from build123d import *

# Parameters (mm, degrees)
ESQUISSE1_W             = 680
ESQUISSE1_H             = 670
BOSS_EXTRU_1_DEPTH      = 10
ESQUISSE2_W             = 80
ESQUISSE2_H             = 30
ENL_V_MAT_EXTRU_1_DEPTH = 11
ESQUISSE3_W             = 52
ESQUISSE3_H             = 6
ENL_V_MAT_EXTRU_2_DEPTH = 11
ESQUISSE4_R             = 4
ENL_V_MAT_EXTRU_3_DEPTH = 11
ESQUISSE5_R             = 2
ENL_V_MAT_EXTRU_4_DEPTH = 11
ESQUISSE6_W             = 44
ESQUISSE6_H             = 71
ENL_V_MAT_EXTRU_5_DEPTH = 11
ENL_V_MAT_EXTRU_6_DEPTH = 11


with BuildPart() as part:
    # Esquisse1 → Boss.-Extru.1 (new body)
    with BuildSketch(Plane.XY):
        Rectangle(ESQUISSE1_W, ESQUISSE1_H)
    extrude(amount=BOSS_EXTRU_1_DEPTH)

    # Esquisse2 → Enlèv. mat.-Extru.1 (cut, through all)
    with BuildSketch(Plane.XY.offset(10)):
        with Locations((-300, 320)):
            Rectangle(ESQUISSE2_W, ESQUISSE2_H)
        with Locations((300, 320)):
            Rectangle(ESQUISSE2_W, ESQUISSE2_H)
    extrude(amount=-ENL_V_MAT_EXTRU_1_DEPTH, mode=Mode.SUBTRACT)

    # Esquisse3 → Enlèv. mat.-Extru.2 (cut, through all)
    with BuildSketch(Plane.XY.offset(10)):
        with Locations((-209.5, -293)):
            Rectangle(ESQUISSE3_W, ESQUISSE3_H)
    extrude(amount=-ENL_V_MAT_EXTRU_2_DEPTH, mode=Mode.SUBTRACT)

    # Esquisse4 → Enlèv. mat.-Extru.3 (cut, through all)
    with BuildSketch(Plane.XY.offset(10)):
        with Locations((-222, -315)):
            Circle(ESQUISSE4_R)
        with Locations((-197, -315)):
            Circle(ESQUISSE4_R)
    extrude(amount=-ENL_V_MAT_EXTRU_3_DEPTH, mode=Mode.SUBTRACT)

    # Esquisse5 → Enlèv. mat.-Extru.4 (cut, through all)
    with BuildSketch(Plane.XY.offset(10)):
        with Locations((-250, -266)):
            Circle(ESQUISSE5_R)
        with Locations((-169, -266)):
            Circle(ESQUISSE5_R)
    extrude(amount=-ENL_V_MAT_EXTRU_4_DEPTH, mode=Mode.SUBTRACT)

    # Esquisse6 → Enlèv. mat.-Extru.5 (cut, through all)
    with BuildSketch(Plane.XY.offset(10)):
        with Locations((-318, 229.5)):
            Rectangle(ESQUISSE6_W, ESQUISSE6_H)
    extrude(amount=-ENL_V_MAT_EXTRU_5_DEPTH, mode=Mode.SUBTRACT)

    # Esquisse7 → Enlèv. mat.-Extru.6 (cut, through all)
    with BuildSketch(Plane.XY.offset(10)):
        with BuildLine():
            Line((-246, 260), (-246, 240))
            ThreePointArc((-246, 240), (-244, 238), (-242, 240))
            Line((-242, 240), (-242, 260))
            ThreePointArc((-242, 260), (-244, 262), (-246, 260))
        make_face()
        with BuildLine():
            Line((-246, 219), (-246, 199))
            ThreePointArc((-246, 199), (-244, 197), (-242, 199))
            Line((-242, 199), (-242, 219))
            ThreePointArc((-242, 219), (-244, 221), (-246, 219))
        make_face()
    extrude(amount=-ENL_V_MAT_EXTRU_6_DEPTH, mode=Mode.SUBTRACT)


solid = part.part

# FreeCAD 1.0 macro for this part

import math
import FreeCAD as App
import Part
import Sketcher

V = App.Vector
Q = App.Units.Quantity


def add_polygon(sketch, points):
    """Adds a closed chain of lines whose ends are joined by coincident constraints."""
    first, n = sketch.GeometryCount, len(points)
    for a, b in zip(points, points[1:] + points[:1]):
        sketch.addGeometry(Part.LineSegment(App.Vector(*a, 0), App.Vector(*b, 0)), False)
    for i in range(n):
        sketch.addConstraint(Sketcher.Constraint("Coincident", first + i, 2, first + (i + 1) % n, 1))

doc = App.newDocument("Part")
body = doc.addObject("PartDesign::Body", "Body")

# Sketch on XY plane
sketch1 = doc.addObject("Sketcher::SketchObject", "Sketch")
body.addObject(sketch1)
sketch1.AttachmentSupport = (doc.XY_Plane, [""])
sketch1.MapMode = "FlatFace"
add_polygon(sketch1, [(-340, 335), (-340, -335), (340, -335), (340, 335)])  # lines 0-3
sketch1.addConstraint([
    Sketcher.Constraint("Vertical", 0),
    Sketcher.Constraint("Horizontal", 1),
    Sketcher.Constraint("Vertical", 2),
    Sketcher.Constraint("Horizontal", 3),
    Sketcher.Constraint("Symmetric", 0, 2, 2, 2, -1, 1),
    Sketcher.Constraint("DistanceX", 1, 1, 1, 2, Q("680 mm")),
    Sketcher.Constraint("DistanceY", 0, 2, 0, 1, Q("670 mm")),
])
pad1 = doc.addObject("PartDesign::Pad", "Pad")
body.addObject(pad1)
pad1.Profile = sketch1
pad1.Length = 10

# Sketch on XY plane
sketch2 = doc.addObject("Sketcher::SketchObject", "Sketch001")
body.addObject(sketch2)
sketch2.AttachmentSupport = (doc.XY_Plane, [""])
sketch2.MapMode = "FlatFace"
sketch2.AttachmentOffset = App.Placement(V(0, 0, 10), App.Rotation())
add_polygon(sketch2, [(-340, 335), (-340, 305), (-260, 305), (-260, 335)])  # lines 0-3
add_polygon(sketch2, [(260, 335), (260, 305), (340, 305), (340, 335)])  # lines 4-7
sketch2.addConstraint([
    Sketcher.Constraint("Vertical", 0),
    Sketcher.Constraint("Horizontal", 1),
    Sketcher.Constraint("Vertical", 2),
    Sketcher.Constraint("Horizontal", 3),
    Sketcher.Constraint("Vertical", 4),
    Sketcher.Constraint("Horizontal", 5),
    Sketcher.Constraint("Vertical", 6),
    Sketcher.Constraint("Horizontal", 7),
    Sketcher.Constraint("Symmetric", 1, 2, 4, 2, -2),
    Sketcher.Constraint("Symmetric", 3, 2, 6, 2, -2),
    Sketcher.Constraint("DistanceX", 1, 1, 1, 2, Q("80 mm")),
    Sketcher.Constraint("DistanceY", 0, 2, 0, 1, Q("30 mm")),
    Sketcher.Constraint("DistanceX", 0, 2, -1, 1, Q("340 mm")),
    Sketcher.Constraint("DistanceY", -1, 1, 0, 2, Q("305 mm")),
])
pocket1 = doc.addObject("PartDesign::Pocket", "Pocket")
body.addObject(pocket1)
pocket1.Profile = sketch2
pocket1.Type = "ThroughAll"

# Sketch on XY plane
sketch3 = doc.addObject("Sketcher::SketchObject", "Sketch002")
body.addObject(sketch3)
sketch3.AttachmentSupport = (doc.XY_Plane, [""])
sketch3.MapMode = "FlatFace"
sketch3.AttachmentOffset = App.Placement(V(0, 0, 10), App.Rotation())
add_polygon(sketch3, [(-235.5, -290), (-235.5, -296), (-183.5, -296), (-183.5, -290)])  # lines 0-3
sketch3.addConstraint([
    Sketcher.Constraint("Vertical", 0),
    Sketcher.Constraint("Horizontal", 1),
    Sketcher.Constraint("Vertical", 2),
    Sketcher.Constraint("Horizontal", 3),
    Sketcher.Constraint("DistanceX", 1, 1, 1, 2, Q("52 mm")),
    Sketcher.Constraint("DistanceY", 0, 2, 0, 1, Q("6 mm")),
    Sketcher.Constraint("DistanceY", 0, 2, -1, 1, Q("296 mm")),
    Sketcher.Constraint("DistanceX", 0, 2, -1, 1, Q("235.5 mm")),
])
pocket2 = doc.addObject("PartDesign::Pocket", "Pocket001")
body.addObject(pocket2)
pocket2.Profile = sketch3
pocket2.Type = "ThroughAll"

# Sketch on XY plane
sketch4 = doc.addObject("Sketcher::SketchObject", "Sketch003")
body.addObject(sketch4)
sketch4.AttachmentSupport = (doc.XY_Plane, [""])
sketch4.MapMode = "FlatFace"
sketch4.AttachmentOffset = App.Placement(V(0, 0, 10), App.Rotation())
sketch4.addGeometry([
    Part.Circle(V(-222, -315, 0), V(0, 0, 1), 4),
    Part.Circle(V(-197, -315, 0), V(0, 0, 1), 4),
], False)
sketch4.addConstraint([
    Sketcher.Constraint("Equal", 0, 1),
    Sketcher.Constraint("Horizontal", 0, 3, 1, 3),
    Sketcher.Constraint("Diameter", 0, Q("8 mm")),
    Sketcher.Constraint("DistanceX", 0, 3, -1, 1, Q("222 mm")),
    Sketcher.Constraint("DistanceY", 0, 3, -1, 1, Q("315 mm")),
    Sketcher.Constraint("DistanceX", 1, 3, -1, 1, Q("197 mm")),
])
pocket3 = doc.addObject("PartDesign::Pocket", "Pocket002")
body.addObject(pocket3)
pocket3.Profile = sketch4
pocket3.Type = "ThroughAll"

# Sketch on XY plane
sketch5 = doc.addObject("Sketcher::SketchObject", "Sketch004")
body.addObject(sketch5)
sketch5.AttachmentSupport = (doc.XY_Plane, [""])
sketch5.MapMode = "FlatFace"
sketch5.AttachmentOffset = App.Placement(V(0, 0, 10), App.Rotation())
sketch5.addGeometry([
    Part.Circle(V(-250, -266, 0), V(0, 0, 1), 2),
    Part.Circle(V(-169, -266, 0), V(0, 0, 1), 2),
], False)
sketch5.addConstraint([
    Sketcher.Constraint("Equal", 0, 1),
    Sketcher.Constraint("Horizontal", 0, 3, 1, 3),
    Sketcher.Constraint("Diameter", 0, Q("4 mm")),
    Sketcher.Constraint("DistanceX", 0, 3, -1, 1, Q("250 mm")),
    Sketcher.Constraint("DistanceY", 0, 3, -1, 1, Q("266 mm")),
    Sketcher.Constraint("DistanceX", 1, 3, -1, 1, Q("169 mm")),
])
pocket4 = doc.addObject("PartDesign::Pocket", "Pocket003")
body.addObject(pocket4)
pocket4.Profile = sketch5
pocket4.Type = "ThroughAll"

# Sketch on XY plane
sketch6 = doc.addObject("Sketcher::SketchObject", "Sketch005")
body.addObject(sketch6)
sketch6.AttachmentSupport = (doc.XY_Plane, [""])
sketch6.MapMode = "FlatFace"
sketch6.AttachmentOffset = App.Placement(V(0, 0, 10), App.Rotation())
add_polygon(sketch6, [(-340, 265), (-340, 194), (-296, 194), (-296, 265)])  # lines 0-3
sketch6.addConstraint([
    Sketcher.Constraint("Vertical", 0),
    Sketcher.Constraint("Horizontal", 1),
    Sketcher.Constraint("Vertical", 2),
    Sketcher.Constraint("Horizontal", 3),
    Sketcher.Constraint("DistanceX", 1, 1, 1, 2, Q("44 mm")),
    Sketcher.Constraint("DistanceY", 0, 2, 0, 1, Q("71 mm")),
    Sketcher.Constraint("DistanceX", 0, 2, -1, 1, Q("340 mm")),
    Sketcher.Constraint("DistanceY", -1, 1, 0, 2, Q("194 mm")),
])
pocket5 = doc.addObject("PartDesign::Pocket", "Pocket004")
body.addObject(pocket5)
pocket5.Profile = sketch6
pocket5.Type = "ThroughAll"

# Sketch on XY plane
sketch7 = doc.addObject("Sketcher::SketchObject", "Sketch006")
body.addObject(sketch7)
sketch7.AttachmentSupport = (doc.XY_Plane, [""])
sketch7.MapMode = "FlatFace"
sketch7.AttachmentOffset = App.Placement(V(0, 0, 10), App.Rotation())
sketch7.addGeometry([
    Part.LineSegment(V(-246, 260, 0), V(-246, 240, 0)),  # 0
    Part.ArcOfCircle(Part.Circle(V(-244, 240, 0), V(0, 0, 1), 2), math.radians(180), math.radians(360)),  # 1
    Part.LineSegment(V(-242, 240, 0), V(-242, 260, 0)),  # 2
    Part.ArcOfCircle(Part.Circle(V(-244, 260, 0), V(0, 0, 1), 2), math.radians(0), math.radians(180)),  # 3
    Part.LineSegment(V(-246, 219, 0), V(-246, 199, 0)),  # 4
    Part.ArcOfCircle(Part.Circle(V(-244, 199, 0), V(0, 0, 1), 2), math.radians(180), math.radians(360)),  # 5
    Part.LineSegment(V(-242, 199, 0), V(-242, 219, 0)),  # 6
    Part.ArcOfCircle(Part.Circle(V(-244, 219, 0), V(0, 0, 1), 2), math.radians(0), math.radians(180)),  # 7
], False)
sketch7.addConstraint([
    Sketcher.Constraint("Tangent", 0, 2, 1, 1),
    Sketcher.Constraint("Tangent", 1, 2, 2, 1),
    Sketcher.Constraint("Tangent", 2, 2, 3, 1),
    Sketcher.Constraint("Tangent", 3, 2, 0, 1),
    Sketcher.Constraint("Tangent", 4, 2, 5, 1),
    Sketcher.Constraint("Tangent", 5, 2, 6, 1),
    Sketcher.Constraint("Tangent", 6, 2, 7, 1),
    Sketcher.Constraint("Tangent", 7, 2, 4, 1),
    Sketcher.Constraint("Vertical", 0),
    Sketcher.Constraint("Vertical", 2),
    Sketcher.Constraint("Vertical", 4),
    Sketcher.Constraint("Vertical", 6),
    Sketcher.Constraint("Equal", 3, 5),
    Sketcher.Constraint("Vertical", 3, 3, 5, 3),
    Sketcher.Constraint("Equal", 2, 4),
    Sketcher.Constraint("Radius", 1, Q("2 mm")),
    Sketcher.Constraint("DistanceY", 0, 2, 0, 1, Q("20 mm")),
    Sketcher.Constraint("DistanceX", 1, 3, -1, 1, Q("244 mm")),
    Sketcher.Constraint("DistanceY", -1, 1, 1, 3, Q("240 mm")),
    Sketcher.Constraint("DistanceY", -1, 1, 5, 3, Q("199 mm")),
])
pocket6 = doc.addObject("PartDesign::Pocket", "Pocket005")
body.addObject(pocket6)
pocket6.Profile = sketch7
pocket6.Type = "ThroughAll"

doc.recompute()
